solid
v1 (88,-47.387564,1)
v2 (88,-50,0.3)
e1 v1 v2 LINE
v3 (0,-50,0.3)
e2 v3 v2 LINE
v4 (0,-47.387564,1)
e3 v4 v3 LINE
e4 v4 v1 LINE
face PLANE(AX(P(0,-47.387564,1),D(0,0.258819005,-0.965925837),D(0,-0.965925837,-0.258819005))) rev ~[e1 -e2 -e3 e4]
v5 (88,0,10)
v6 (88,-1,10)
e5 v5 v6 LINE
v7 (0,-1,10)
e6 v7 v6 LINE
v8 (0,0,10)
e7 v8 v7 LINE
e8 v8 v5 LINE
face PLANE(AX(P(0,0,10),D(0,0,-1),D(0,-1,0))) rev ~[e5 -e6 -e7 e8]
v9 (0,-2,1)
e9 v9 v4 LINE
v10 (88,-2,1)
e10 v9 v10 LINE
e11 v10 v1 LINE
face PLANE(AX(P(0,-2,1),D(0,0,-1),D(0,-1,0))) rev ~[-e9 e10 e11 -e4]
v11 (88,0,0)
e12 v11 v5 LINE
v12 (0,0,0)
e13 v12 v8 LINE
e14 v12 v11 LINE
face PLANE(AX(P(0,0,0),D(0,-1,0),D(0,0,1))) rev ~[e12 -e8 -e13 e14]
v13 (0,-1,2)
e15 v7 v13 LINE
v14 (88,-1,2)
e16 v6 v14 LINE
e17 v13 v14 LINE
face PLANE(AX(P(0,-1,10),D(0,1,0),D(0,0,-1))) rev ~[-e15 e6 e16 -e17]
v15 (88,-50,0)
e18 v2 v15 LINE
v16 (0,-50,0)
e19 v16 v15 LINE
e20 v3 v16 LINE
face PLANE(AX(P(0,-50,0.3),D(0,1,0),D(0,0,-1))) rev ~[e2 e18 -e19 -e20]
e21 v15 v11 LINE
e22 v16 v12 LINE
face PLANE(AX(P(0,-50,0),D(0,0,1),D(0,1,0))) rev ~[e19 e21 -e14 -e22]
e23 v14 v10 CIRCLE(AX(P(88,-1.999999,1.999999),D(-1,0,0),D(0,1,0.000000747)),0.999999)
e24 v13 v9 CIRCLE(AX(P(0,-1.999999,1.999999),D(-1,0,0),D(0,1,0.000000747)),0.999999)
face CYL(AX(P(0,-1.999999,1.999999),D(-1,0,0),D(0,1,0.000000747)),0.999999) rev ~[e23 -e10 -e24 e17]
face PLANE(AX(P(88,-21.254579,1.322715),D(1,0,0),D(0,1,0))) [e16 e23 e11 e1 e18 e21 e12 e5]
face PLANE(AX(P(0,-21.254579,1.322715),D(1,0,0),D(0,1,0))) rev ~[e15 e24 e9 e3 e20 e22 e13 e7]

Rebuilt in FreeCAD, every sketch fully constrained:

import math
import FreeCAD as App
import Part
import Sketcher
Q = App.Units.Quantity

doc = App.newDocument("Part")
body = doc.addObject("PartDesign::Body", "Body")

# Sketch on YZ plane
sketch1 = doc.addObject("Sketcher::SketchObject", "Sketch")
body.addObject(sketch1)
sketch1.AttachmentSupport = (doc.YZ_Plane, [""])
sketch1.MapMode = "FlatFace"
sketch1.addGeometry([
    Part.LineSegment(App.Vector(-50, 0.3, 0), App.Vector(-50, 0, 0)),  # 0
    Part.LineSegment(App.Vector(-50, 0, 0), App.Vector(0, 0, 0)),  # 1
    Part.LineSegment(App.Vector(0, 0, 0), App.Vector(0, 10, 0)),  # 2
    Part.LineSegment(App.Vector(0, 10, 0), App.Vector(-1, 10, 0)),  # 3
    Part.LineSegment(App.Vector(-1, 10, 0), App.Vector(-1, 2, 0)),  # 4
    Part.ArcOfCircle(Part.Circle(App.Vector(-2, 2, 0), App.Vector(0, 0, 1), 1), math.radians(-90), math.radians(0)),  # 5
    Part.LineSegment(App.Vector(-2, 1, 0), App.Vector(-47.39, 1, 0)),  # 6
    Part.LineSegment(App.Vector(-47.39, 1, 0), App.Vector(-50, 0.3, 0)),  # 7
], False)
sketch1.addConstraint([
    Sketcher.Constraint("Coincident", 0, 2, 1, 1),
    Sketcher.Constraint("Coincident", 1, 2, 2, 1),
    Sketcher.Constraint("Coincident", 2, 2, 3, 1),
    Sketcher.Constraint("Coincident", 3, 2, 4, 1),
    Sketcher.Constraint("Tangent", 4, 2, 5, 2),
    Sketcher.Constraint("Tangent", 5, 1, 6, 1),
    Sketcher.Constraint("Coincident", 6, 2, 7, 1),
    Sketcher.Constraint("Coincident", 7, 2, 0, 1),
    Sketcher.Constraint("Vertical", 0),
    Sketcher.Constraint("Horizontal", 1),
    Sketcher.Constraint("Vertical", 2),
    Sketcher.Constraint("Horizontal", 3),
    Sketcher.Constraint("Vertical", 4),
    Sketcher.Constraint("Horizontal", 6),
    Sketcher.Constraint("Coincident", 1, 2, -1, 1),
    Sketcher.Constraint("Radius", 5, 0.999999),
    Sketcher.Constraint("DistanceX", 1, 1, 1, 2, 50.0),
    Sketcher.Constraint("DistanceX", 3, 2, 3, 1, 1.0),
    Sketcher.Constraint("DistanceY", 2, 1, 2, 2, 10.0),
    Sketcher.Constraint("DistanceY", 4, 2, 4, 1, 8.0),
    Sketcher.Constraint("Angle", 7, Q("-165.000002 deg")),
    Sketcher.Constraint("DistanceY", 0, 2, 0, 1, 0.3),
])
pad1 = doc.addObject("PartDesign::Pad", "Pad")
body.addObject(pad1)
pad1.Profile = sketch1
pad1.Length = 88

doc.recompute()
